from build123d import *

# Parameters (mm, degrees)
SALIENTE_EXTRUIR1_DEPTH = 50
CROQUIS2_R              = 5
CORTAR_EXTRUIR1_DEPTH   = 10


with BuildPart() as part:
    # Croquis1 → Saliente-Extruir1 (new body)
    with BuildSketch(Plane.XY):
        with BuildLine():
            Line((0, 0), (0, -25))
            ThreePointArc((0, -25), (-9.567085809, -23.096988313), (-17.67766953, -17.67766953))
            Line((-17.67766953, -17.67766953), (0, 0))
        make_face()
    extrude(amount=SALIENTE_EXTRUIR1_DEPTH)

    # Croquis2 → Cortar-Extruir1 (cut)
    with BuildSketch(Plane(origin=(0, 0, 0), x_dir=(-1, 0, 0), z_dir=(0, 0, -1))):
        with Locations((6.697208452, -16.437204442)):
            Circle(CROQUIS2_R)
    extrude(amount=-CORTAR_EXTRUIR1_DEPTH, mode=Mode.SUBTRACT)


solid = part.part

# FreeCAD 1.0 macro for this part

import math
import FreeCAD as App
import Part
import Sketcher

V = App.Vector
Q = App.Units.Quantity

doc = App.newDocument("Part")
params = doc.addObject("Spreadsheet::Sheet", "Params")
for row, (alias, value) in enumerate([
    ("sketch1_radius", "25 mm"),
    ("pad1_length", "50 mm"),
    ("sketch2_diameter", "10 mm"),
    ("pocket1_length", "10 mm"),
], start=1):
    params.set(f"A{row}", alias)
    params.set(f"B{row}", "=" + value)
    params.setAlias(f"B{row}", alias)

body = doc.addObject("PartDesign::Body", "Body")

sketch1 = body.newObject("Sketcher::SketchObject", "Sketch")
sketch1.AttachmentSupport = (doc.getObject("XY_Plane"), [""])
sketch1.MapMode = "FlatFace"
sketch1.addGeometry([
    Part.LineSegment(V(0, -25, 0), V(0, 0, 0)),
    Part.LineSegment(V(0, 0, 0), V(-17.67767, -17.67767, 0)),
    Part.ArcOfCircle(Part.Circle(V(0, 0, 0), V(0, 0, 1), 25), math.radians(-135), math.radians(-90)),
], False)
sketch1.addConstraint([
    Sketcher.Constraint("Coincident", 0, 2, 1, 1),
    Sketcher.Constraint("Coincident", 1, 2, 2, 1),
    Sketcher.Constraint("Coincident", 2, 2, 0, 1),
    Sketcher.Constraint("Vertical", 0),
    Sketcher.Constraint("Coincident", 2, 3, -1, 1),
    Sketcher.Constraint("Coincident", 0, 2, -1, 1),
    Sketcher.Constraint("Radius", 2, Q("25 mm")),
    Sketcher.Constraint("Angle", 1, Q("-135 deg")),
])
sketch1.setExpression("Constraints[6]", "Params.sketch1_radius")
pad1 = body.newObject("PartDesign::Pad", "Pad")
pad1.Profile = sketch1
pad1.setExpression("Length", "Params.pad1_length")

sketch2 = body.newObject("Sketcher::SketchObject", "Sketch001")
sketch2.AttachmentSupport = (doc.getObject("XY_Plane"), [""])
sketch2.MapMode = "FlatFace"
sketch2.addGeometry(Part.Circle(V(-6.697208, -16.437204, 0), V(0, 0, 1), 5), False)
sketch2.addConstraint([
    Sketcher.Constraint("Diameter", 0, Q("10 mm")),
    Sketcher.Constraint("DistanceX", 0, 3, -1, 1, Q("6.697208 mm")),
    Sketcher.Constraint("DistanceY", 0, 3, -1, 1, Q("16.437204 mm")),
])
sketch2.setExpression("Constraints[0]", "Params.sketch2_diameter")
pocket1 = body.newObject("PartDesign::Pocket", "Pocket")
pocket1.Profile = sketch2
pocket1.setExpression("Length", "Params.pocket1_length")
pocket1.Reversed = True

doc.recompute()
